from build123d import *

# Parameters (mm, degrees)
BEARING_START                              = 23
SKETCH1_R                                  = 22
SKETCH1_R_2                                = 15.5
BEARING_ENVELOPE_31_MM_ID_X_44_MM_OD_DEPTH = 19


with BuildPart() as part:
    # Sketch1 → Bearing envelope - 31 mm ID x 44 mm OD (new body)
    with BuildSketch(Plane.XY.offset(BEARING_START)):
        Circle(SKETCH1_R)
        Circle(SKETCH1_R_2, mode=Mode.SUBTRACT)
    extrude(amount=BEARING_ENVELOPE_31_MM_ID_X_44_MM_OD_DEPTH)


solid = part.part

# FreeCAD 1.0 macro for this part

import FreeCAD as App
import Part
import Sketcher

V = App.Vector

doc = App.newDocument("Part")
body = doc.addObject("PartDesign::Body", "Body")

# Sketch on XY plane
sketch1 = body.newObject("Sketcher::SketchObject", "Sketch")
sketch1.AttachmentSupport = (doc.getObject("XY_Plane"), [""])
sketch1.MapMode = "FlatFace"
sketch1.AttachmentOffset = App.Placement(V(0, 0, 23), App.Rotation())
sketch1.addGeometry([
    Part.Circle(V(0, 0, 0), V(0, 0, 1), 22),
    Part.Circle(V(0, 0, 0), V(0, 0, 1), 16),
], False)
sketch1.addConstraint([
    Sketcher.Constraint("Coincident", 0, 3, -1, 1),
    Sketcher.Constraint("Coincident", 1, 3, -1, 1),
    Sketcher.Constraint("Diameter", 0, 44.0),
    Sketcher.Constraint("Diameter", 1, 31.0),
])
pad1 = body.newObject("PartDesign::Pad", "Pad")
pad1.Profile = sketch1
pad1.Length = 19

doc.recompute()
